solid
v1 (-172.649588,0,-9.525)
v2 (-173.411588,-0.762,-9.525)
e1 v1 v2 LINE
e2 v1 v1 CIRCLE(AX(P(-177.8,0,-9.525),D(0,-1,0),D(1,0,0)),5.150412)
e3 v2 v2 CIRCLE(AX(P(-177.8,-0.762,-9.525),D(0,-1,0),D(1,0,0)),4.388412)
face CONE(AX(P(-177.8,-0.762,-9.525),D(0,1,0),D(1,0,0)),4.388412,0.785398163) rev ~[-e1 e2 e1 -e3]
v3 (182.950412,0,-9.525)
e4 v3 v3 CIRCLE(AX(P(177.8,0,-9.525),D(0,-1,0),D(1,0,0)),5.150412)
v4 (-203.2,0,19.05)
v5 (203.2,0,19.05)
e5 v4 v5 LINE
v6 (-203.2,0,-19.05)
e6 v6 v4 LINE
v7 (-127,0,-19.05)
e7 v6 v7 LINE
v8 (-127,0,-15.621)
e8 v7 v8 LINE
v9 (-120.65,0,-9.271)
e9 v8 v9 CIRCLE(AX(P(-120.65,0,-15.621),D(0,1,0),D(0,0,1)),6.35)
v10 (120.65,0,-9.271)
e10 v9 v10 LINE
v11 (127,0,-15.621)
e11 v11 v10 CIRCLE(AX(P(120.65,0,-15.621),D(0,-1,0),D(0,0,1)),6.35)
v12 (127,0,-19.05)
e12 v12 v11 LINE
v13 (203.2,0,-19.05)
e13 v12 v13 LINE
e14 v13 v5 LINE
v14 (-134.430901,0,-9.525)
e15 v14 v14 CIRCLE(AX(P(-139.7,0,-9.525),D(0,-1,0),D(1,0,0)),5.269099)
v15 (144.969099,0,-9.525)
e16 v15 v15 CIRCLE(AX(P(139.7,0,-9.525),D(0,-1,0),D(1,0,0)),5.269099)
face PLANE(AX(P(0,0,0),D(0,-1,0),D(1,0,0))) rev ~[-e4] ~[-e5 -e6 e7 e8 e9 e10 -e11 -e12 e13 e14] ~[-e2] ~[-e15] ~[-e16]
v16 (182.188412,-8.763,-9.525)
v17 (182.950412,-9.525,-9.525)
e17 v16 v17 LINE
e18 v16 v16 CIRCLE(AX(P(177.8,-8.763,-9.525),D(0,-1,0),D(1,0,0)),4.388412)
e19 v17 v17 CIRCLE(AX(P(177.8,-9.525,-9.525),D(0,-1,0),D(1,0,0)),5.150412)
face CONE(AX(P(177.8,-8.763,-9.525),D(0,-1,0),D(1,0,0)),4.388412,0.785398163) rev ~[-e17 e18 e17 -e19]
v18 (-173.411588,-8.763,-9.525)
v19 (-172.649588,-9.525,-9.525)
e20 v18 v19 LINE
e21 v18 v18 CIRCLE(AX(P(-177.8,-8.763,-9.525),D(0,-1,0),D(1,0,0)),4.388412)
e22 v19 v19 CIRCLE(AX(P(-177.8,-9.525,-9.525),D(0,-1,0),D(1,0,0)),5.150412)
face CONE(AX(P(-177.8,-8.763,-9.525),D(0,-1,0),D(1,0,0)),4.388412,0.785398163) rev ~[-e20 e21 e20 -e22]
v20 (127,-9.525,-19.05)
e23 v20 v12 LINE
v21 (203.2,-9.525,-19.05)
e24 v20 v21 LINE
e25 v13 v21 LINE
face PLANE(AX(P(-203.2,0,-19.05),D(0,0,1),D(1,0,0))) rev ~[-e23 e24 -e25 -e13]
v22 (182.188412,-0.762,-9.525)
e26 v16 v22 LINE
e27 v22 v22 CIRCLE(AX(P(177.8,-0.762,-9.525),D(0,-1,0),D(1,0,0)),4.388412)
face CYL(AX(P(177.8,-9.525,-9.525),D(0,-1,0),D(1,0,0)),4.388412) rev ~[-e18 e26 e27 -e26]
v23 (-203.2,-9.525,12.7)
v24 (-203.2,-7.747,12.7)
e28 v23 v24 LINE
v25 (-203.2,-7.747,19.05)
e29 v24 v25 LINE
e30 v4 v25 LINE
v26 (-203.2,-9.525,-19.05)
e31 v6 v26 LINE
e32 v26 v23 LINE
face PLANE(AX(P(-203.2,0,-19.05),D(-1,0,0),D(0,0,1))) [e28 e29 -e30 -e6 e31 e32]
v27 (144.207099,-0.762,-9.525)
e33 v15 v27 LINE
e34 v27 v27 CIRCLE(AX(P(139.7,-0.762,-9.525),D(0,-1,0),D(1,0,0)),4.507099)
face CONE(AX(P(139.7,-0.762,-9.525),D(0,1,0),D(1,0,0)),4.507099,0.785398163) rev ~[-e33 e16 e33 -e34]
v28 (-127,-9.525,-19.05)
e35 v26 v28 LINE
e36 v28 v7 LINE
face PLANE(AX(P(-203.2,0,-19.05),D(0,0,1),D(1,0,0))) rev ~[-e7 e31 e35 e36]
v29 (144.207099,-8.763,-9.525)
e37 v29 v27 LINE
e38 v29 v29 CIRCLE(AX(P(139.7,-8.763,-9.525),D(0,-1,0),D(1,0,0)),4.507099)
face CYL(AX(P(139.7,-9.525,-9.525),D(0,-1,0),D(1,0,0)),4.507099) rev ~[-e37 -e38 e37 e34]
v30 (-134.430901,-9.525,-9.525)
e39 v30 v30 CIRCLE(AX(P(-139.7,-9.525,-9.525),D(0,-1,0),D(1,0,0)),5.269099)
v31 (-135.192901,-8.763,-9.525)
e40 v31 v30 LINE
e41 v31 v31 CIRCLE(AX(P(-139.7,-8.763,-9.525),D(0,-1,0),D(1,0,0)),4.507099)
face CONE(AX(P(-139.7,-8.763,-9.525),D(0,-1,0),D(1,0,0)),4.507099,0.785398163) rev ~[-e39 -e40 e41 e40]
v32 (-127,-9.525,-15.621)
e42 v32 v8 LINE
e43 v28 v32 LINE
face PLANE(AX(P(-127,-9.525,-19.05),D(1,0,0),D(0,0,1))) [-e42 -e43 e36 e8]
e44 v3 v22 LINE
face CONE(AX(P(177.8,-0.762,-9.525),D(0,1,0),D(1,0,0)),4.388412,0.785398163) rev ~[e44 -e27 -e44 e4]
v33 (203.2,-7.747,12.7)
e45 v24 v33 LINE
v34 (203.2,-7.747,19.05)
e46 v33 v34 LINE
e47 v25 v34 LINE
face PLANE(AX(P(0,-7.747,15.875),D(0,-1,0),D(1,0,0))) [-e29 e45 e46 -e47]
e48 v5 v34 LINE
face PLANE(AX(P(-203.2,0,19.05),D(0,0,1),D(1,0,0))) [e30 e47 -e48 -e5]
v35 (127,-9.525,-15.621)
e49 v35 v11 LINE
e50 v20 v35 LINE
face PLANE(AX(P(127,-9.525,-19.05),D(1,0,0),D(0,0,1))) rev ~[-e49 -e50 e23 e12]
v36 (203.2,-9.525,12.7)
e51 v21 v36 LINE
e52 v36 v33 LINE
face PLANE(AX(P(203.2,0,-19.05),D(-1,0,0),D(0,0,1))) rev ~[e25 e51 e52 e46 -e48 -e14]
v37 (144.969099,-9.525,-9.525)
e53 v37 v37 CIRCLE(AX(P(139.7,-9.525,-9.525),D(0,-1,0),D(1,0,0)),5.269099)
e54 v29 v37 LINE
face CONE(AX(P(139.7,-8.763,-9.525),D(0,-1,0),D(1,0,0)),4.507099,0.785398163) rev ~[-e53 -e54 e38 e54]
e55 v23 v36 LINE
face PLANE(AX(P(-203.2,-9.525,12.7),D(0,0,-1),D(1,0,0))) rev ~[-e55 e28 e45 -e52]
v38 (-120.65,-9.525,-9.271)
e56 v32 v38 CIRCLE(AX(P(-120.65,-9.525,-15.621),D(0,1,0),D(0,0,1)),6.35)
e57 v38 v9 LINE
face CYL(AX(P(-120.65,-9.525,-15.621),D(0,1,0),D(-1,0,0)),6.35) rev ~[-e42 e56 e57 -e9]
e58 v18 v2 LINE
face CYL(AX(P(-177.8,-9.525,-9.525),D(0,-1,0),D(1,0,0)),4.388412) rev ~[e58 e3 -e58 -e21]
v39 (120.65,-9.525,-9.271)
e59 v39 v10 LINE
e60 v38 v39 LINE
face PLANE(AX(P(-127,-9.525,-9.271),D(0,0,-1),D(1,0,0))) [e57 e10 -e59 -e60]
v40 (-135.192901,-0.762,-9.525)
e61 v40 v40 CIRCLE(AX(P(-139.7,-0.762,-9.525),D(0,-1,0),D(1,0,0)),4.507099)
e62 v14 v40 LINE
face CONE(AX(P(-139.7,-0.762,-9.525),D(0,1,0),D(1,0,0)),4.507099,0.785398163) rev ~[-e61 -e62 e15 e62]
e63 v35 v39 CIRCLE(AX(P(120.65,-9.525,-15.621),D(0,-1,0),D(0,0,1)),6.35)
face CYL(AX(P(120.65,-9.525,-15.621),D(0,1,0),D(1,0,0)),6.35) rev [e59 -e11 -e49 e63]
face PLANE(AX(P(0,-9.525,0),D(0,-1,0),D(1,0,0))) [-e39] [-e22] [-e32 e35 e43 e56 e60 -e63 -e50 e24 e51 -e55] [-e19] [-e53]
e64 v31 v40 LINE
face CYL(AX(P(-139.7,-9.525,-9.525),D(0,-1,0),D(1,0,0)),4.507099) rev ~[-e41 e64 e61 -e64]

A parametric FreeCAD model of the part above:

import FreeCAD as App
import Part
import Sketcher
Q = App.Units.Quantity


def edges_at(feature, points):
    """Names of the edges that pass closest to the given points."""
    edges = feature.Shape.Edges
    near = lambda p: min(range(len(edges)), key=lambda i: edges[i].distToShape(Part.Vertex(*p))[0])
    return sorted({f"Edge{near(p) + 1}" for p in points})


def add_polygon(sketch, points):
    """Adds a closed chain of lines whose ends are joined by coincident constraints."""
    first, n = sketch.GeometryCount, len(points)
    for a, b in zip(points, points[1:] + points[:1]):
        sketch.addGeometry(Part.LineSegment(App.Vector(*a, 0), App.Vector(*b, 0)), False)
    for i in range(n):
        sketch.addConstraint(Sketcher.Constraint("Coincident", first + i, 2, first + (i + 1) % n, 1))

doc = App.newDocument("Part")
params = doc.addObject("Spreadsheet::Sheet", "Params")
for row, (alias, value) in enumerate([
    ("sketch1_width", "16 in"),
    ("sketch1_height", "1.5 in"),
    ("pad1_length", "0.375 in"),
    ("sketch2_width", "10 in"),
    ("sketch2_height", "0.385 in"),
    ("fillet_radius", "0.25 in"),
    ("sketch3_width", "16 in"),
    ("sketch3_height", "0.25 in"),
    ("pocket2_length", "0.07 in"),
    ("chamfer_size", "0.03 in"),
], start=1):
    params.set(f"A{row}", alias)
    params.set(f"B{row}", "=" + value)
    params.setAlias(f"B{row}", alias)

body = doc.addObject("PartDesign::Body", "Body")

sketch1 = body.newObject("Sketcher::SketchObject", "Sketch")
sketch1.AttachmentSupport = (doc.getObject("XZ_Plane"), [""])
sketch1.MapMode = "FlatFace"
add_polygon(sketch1, [(-203.2, 19.05), (-203.2, -19.05), (203.2, -19.05), (203.2, 19.05)])
sketch1.addConstraint([
    Sketcher.Constraint("Vertical", 0),
    Sketcher.Constraint("Horizontal", 1),
    Sketcher.Constraint("Vertical", 2),
    Sketcher.Constraint("Horizontal", 3),
    Sketcher.Constraint("Symmetric", 0, 2, 2, 2, -1, 1),
    Sketcher.Constraint("DistanceX", 1, 1, 1, 2, Q("16 in")),
    Sketcher.Constraint("DistanceY", 0, 2, 0, 1, Q("1.5 in")),
])
sketch1.setExpression("Constraints[9]", "Params.sketch1_width")
sketch1.setExpression("Constraints[10]", "Params.sketch1_height")
pad1 = body.newObject("PartDesign::Pad", "Pad")
pad1.Profile = sketch1
pad1.setExpression("Length", "Params.pad1_length")

sketch2 = body.newObject("Sketcher::SketchObject", "Sketch001")
sketch2.AttachmentSupport = (doc.getObject("XZ_Plane"), [""])
sketch2.MapMode = "FlatFace"
sketch2.AttachmentOffset = App.Placement(App.Vector(0, 0, 0.375 * 25.4), App.Rotation())
add_polygon(sketch2, [(-127, -9.271), (-127, -19.05), (127, -19.05), (127, -9.271)])
sketch2.addConstraint([
    Sketcher.Constraint("Vertical", 0),
    Sketcher.Constraint("Horizontal", 1),
    Sketcher.Constraint("Vertical", 2),
    Sketcher.Constraint("Horizontal", 3),
    Sketcher.Constraint("DistanceX", 1, 1, 1, 2, Q("10 in")),
    Sketcher.Constraint("DistanceX", 0, 2, -1, 1, Q("5 in")),
    Sketcher.Constraint("DistanceY", 0, 2, 0, 1, Q("0.385 in")),
    Sketcher.Constraint("DistanceY", 0, 2, -1, 1, Q("0.75 in")),
])
sketch2.setExpression("Constraints[8]", "Params.sketch2_width")
sketch2.setExpression("Constraints[10]", "Params.sketch2_height")
pocket1 = body.newObject("PartDesign::Pocket", "Pocket")
pocket1.Profile = sketch2
pocket1.Type = "ThroughAll"
doc.recompute()

fillet = body.newObject("PartDesign::Fillet", "Fillet")
fillet.Base = (pocket1, edges_at(pocket1, [(-127, -4.763, -9.271), (127, -4.763, -9.271)]))
fillet.setExpression("Radius", "Params.fillet_radius")

sketch3 = body.newObject("Sketcher::SketchObject", "Sketch002")
sketch3.AttachmentSupport = (doc.getObject("XZ_Plane"), [""])
sketch3.MapMode = "FlatFace"
sketch3.AttachmentOffset = App.Placement(App.Vector(0, 0, 0.375 * 25.4), App.Rotation())
add_polygon(sketch3, [(-203.2, 19.05), (-203.2, 12.7), (203.2, 12.7), (203.2, 19.05)])
sketch3.addConstraint([
    Sketcher.Constraint("Vertical", 0),
    Sketcher.Constraint("Horizontal", 1),
    Sketcher.Constraint("Vertical", 2),
    Sketcher.Constraint("Horizontal", 3),
    Sketcher.Constraint("DistanceX", 1, 1, 1, 2, Q("16 in")),
    Sketcher.Constraint("DistanceX", 0, 2, -1, 1, Q("8 in")),
    Sketcher.Constraint("DistanceY", 0, 2, 0, 1, Q("0.25 in")),
    Sketcher.Constraint("DistanceY", -1, 1, 0, 2, Q("0.5 in")),
])
sketch3.setExpression("Constraints[8]", "Params.sketch3_width")
sketch3.setExpression("Constraints[10]", "Params.sketch3_height")
pocket2 = body.newObject("PartDesign::Pocket", "Pocket001")
pocket2.Profile = sketch3
pocket2.setExpression("Length", "Params.pocket2_length")

sketch4 = body.newObject("Sketcher::SketchObject", "Sketch003")
sketch4.AttachmentSupport = (doc.getObject("XZ_Plane"), [""])
sketch4.MapMode = "FlatFace"
sketch4.AttachmentOffset = App.Placement(App.Vector(0, 0, 0.375 * 25.4), App.Rotation())
sketch4.addGeometry([
    Part.Circle(App.Vector(139.7, -9.525, 0), App.Vector(0, 0, 1), 4.507099),
    Part.Circle(App.Vector(177.8, -9.525, 0), App.Vector(0, 0, 1), 4.388412),
    Part.Circle(App.Vector(-177.8, -9.525, 0), App.Vector(0, 0, 1), 4.388412),
    Part.Circle(App.Vector(-139.7, -9.525, 0), App.Vector(0, 0, 1), 4.507099),
], False)
sketch4.addConstraint([
    Sketcher.Constraint("Equal", 1, 2),
    Sketcher.Constraint("Equal", 0, 3),
    Sketcher.Constraint("Symmetric", 1, 3, 2, 3, -2),
    Sketcher.Constraint("Symmetric", 0, 3, 3, 3, -2),
    Sketcher.Constraint("Horizontal", 0, 3, 1, 3),
    Sketcher.Constraint("DistanceX", -1, 1, 1, 3, Q("7 in")),
    Sketcher.Constraint("DistanceX", 3, 3, 0, 3, Q("11 in")),
    Sketcher.Constraint("DistanceY", 0, 3, -1, 1, Q("0.375 in")),
    Sketcher.Constraint("Diameter", 0, Q("9.014198 mm")),
    Sketcher.Constraint("Diameter", 1, Q("8.776824 mm")),
])
pocket3 = body.newObject("PartDesign::Pocket", "Pocket002")
pocket3.Profile = sketch4
pocket3.Type = "ThroughAll"
doc.recompute()

chamfer = body.newObject("PartDesign::Chamfer", "Chamfer")
chamfer.Base = (pocket3, edges_at(pocket3, [
    (-182.188, -9.525, -9.525),
    (-144.207, -9.525, -9.525),
    (135.193, -9.525, -9.525),
    (173.412, -9.525, -9.525),
    (173.412, 0, -9.525),
    (135.193, 0, -9.525),
    (-144.207, 0, -9.525),
    (-182.188, 0, -9.525),
]))
chamfer.setExpression("Size", "Params.chamfer_size")

doc.recompute()
